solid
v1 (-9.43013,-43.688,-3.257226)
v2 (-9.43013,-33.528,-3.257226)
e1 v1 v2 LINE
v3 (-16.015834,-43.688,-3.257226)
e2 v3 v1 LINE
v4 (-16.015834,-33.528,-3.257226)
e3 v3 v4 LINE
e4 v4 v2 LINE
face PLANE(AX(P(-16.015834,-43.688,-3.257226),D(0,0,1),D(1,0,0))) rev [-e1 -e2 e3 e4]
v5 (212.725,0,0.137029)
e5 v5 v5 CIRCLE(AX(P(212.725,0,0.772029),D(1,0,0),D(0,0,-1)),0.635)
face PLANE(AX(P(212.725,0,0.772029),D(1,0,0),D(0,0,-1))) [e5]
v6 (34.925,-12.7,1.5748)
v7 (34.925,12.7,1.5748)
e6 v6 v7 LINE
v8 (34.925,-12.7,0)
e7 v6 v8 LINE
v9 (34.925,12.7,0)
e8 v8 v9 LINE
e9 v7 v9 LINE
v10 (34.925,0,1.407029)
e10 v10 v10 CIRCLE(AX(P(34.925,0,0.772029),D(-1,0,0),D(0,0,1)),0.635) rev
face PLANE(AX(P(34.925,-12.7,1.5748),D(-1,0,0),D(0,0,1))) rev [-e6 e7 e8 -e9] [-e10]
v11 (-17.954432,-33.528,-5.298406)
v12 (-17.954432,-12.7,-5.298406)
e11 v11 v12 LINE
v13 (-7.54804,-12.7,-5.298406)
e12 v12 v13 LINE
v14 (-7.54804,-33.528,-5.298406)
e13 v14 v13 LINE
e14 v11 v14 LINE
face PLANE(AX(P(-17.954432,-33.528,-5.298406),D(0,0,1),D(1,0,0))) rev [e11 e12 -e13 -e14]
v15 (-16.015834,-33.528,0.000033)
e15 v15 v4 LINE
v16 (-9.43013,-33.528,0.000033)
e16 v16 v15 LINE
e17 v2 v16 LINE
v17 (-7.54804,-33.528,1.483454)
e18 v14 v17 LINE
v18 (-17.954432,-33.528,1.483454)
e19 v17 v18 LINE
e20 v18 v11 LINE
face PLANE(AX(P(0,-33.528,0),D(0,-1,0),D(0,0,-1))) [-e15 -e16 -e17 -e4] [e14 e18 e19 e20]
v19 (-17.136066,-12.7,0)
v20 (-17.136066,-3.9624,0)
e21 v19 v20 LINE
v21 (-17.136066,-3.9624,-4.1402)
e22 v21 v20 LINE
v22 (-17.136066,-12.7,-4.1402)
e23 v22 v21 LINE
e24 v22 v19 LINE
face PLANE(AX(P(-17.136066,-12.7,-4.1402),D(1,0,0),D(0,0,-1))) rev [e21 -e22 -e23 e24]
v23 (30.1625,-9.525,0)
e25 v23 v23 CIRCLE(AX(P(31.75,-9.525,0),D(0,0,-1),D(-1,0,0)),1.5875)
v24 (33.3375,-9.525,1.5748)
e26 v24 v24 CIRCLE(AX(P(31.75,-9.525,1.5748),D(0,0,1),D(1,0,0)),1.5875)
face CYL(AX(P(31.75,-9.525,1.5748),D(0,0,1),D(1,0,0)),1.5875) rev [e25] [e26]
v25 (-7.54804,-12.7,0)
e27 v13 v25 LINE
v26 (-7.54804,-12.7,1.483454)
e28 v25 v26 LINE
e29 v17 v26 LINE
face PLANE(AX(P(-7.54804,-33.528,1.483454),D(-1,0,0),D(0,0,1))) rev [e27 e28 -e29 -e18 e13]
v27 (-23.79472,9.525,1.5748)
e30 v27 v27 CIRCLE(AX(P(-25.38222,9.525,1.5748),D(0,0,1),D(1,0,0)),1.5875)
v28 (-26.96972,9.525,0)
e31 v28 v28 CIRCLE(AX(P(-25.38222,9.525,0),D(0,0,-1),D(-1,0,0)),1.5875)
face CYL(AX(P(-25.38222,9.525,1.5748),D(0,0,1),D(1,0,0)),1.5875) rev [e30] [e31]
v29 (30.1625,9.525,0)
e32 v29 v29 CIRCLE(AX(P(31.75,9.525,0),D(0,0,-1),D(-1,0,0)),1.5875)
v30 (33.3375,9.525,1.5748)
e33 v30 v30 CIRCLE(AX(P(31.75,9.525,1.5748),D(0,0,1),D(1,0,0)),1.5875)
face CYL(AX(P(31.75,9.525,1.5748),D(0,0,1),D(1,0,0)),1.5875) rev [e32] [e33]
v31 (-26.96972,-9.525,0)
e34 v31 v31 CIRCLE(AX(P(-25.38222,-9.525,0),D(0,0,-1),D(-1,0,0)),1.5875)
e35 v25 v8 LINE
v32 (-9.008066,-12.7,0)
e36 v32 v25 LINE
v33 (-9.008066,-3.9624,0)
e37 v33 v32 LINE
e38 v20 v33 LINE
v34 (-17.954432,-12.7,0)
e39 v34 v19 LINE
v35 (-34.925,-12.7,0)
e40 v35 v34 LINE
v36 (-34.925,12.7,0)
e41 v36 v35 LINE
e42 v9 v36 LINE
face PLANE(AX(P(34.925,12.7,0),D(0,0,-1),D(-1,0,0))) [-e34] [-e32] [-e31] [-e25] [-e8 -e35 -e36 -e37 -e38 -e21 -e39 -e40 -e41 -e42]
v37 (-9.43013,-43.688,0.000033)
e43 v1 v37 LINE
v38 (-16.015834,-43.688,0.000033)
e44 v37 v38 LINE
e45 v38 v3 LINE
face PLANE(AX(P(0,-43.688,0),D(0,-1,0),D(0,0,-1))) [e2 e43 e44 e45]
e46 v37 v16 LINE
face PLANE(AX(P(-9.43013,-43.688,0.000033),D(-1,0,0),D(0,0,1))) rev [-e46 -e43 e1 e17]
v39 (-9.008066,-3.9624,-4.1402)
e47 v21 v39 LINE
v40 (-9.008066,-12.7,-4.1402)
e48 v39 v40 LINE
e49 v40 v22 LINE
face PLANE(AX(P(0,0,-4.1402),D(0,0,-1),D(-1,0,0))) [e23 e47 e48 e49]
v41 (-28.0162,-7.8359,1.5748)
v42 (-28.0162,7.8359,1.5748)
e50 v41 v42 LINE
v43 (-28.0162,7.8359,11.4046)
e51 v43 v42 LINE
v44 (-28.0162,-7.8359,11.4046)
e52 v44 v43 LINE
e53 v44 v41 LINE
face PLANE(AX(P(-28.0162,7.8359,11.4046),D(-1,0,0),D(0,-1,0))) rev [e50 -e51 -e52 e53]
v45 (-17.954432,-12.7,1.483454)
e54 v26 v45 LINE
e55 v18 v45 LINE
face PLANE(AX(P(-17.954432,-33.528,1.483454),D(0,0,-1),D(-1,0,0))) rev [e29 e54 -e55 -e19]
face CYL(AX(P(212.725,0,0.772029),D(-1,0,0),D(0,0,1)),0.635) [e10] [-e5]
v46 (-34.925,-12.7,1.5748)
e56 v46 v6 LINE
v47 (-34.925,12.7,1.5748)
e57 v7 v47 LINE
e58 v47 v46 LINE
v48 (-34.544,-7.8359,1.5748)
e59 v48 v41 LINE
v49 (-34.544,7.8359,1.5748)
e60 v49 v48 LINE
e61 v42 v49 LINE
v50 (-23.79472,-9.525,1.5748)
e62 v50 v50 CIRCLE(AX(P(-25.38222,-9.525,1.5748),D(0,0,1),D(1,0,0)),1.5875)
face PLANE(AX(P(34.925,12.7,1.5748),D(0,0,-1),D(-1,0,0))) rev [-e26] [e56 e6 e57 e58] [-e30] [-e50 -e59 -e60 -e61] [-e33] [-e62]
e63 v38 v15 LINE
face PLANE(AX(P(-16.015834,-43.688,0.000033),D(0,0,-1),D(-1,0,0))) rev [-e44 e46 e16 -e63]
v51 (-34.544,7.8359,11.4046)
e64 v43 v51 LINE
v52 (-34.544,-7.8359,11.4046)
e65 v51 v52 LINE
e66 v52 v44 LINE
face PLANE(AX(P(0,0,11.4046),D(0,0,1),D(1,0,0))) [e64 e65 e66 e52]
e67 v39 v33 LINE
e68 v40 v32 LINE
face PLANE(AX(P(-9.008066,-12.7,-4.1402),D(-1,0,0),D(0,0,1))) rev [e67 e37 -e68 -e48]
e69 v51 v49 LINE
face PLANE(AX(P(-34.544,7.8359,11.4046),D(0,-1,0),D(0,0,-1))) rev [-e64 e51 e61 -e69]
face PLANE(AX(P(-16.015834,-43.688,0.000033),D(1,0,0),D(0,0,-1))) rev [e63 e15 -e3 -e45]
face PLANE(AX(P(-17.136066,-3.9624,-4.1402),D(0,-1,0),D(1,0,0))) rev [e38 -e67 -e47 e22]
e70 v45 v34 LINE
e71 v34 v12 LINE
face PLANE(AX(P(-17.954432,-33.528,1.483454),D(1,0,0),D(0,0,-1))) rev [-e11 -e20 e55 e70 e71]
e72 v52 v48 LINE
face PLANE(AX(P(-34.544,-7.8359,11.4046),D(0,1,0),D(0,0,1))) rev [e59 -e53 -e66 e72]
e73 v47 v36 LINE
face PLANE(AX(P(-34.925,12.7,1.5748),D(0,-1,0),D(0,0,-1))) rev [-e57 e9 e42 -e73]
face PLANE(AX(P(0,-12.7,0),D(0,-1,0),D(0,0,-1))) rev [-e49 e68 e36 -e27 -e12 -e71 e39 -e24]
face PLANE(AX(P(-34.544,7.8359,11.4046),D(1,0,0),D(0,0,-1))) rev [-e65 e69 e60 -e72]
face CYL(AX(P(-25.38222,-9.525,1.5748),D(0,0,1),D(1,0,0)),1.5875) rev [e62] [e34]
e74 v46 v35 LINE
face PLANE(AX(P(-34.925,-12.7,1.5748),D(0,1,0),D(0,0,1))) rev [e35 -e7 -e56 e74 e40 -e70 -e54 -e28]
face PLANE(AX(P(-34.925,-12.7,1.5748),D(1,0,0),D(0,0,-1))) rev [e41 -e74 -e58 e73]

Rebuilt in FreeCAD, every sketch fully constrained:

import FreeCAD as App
import Part
import Sketcher
Q = App.Units.Quantity


def add_polygon(sketch, points):
    """Adds a closed chain of lines whose ends are joined by coincident constraints."""
    first, n = sketch.GeometryCount, len(points)
    for a, b in zip(points, points[1:] + points[:1]):
        sketch.addGeometry(Part.LineSegment(App.Vector(*a, 0), App.Vector(*b, 0)), False)
    for i in range(n):
        sketch.addConstraint(Sketcher.Constraint("Coincident", first + i, 2, first + (i + 1) % n, 1))

doc = App.newDocument("Part")
body = doc.addObject("PartDesign::Body", "Body")

# Sketch on XY plane
sketch1 = doc.addObject("Sketcher::SketchObject", "Sketch")
body.addObject(sketch1)
sketch1.AttachmentSupport = (doc.XY_Plane, [""])
sketch1.MapMode = "FlatFace"
add_polygon(sketch1, [(-35, 13), (-35, -13), (35, -13), (35, 13)])  # lines 0-3
sketch1.addConstraint(Sketcher.Constraint("Vertical", 0))
sketch1.addConstraint(Sketcher.Constraint("Horizontal", 1))
sketch1.addConstraint(Sketcher.Constraint("Vertical", 2))
sketch1.addConstraint(Sketcher.Constraint("Horizontal", 3))
sketch1.addConstraint(Sketcher.Constraint("Symmetric", 0, 2, 2, 2, -1, 1))
sketch1.addConstraint(Sketcher.Constraint("DistanceY", 0, 2, 0, 1, Q("1 in")))
sketch1.addConstraint(Sketcher.Constraint("DistanceX", 1, 1, 1, 2, Q("2.75 in")))
pad1 = doc.addObject("PartDesign::Pad", "Pad")
body.addObject(pad1)
pad1.Profile = sketch1
pad1.Length = Q("0.062 in")

# Sketch on YZ plane
sketch2 = doc.addObject("Sketcher::SketchObject", "Sketch001")
body.addObject(sketch2)
sketch2.AttachmentSupport = (doc.YZ_Plane, [""])
sketch2.MapMode = "FlatFace"
sketch2.AttachmentOffset = App.Placement(App.Vector(0, 0, -0.9993 * 25.4), App.Rotation())
add_polygon(sketch2, [(9.5, -15.4), (9.5, 1.6), (7.9, 1.6), (7.9, -14.4)])  # lines 0-3
sketch2.addGeometry(Part.LineSegment(App.Vector(9.5, 1.6, 0), App.Vector(9.5, -15.4, 0)), True)  # axis
sketch2.addConstraint(Sketcher.Constraint("Vertical", 0))
sketch2.addConstraint(Sketcher.Constraint("Horizontal", 1))
sketch2.addConstraint(Sketcher.Constraint("Vertical", 2))
sketch2.addConstraint(Sketcher.Constraint("Vertical", 4))
sketch2.addConstraint(Sketcher.Constraint("Coincident", 4, 1, 0, 2))
sketch2.addConstraint(Sketcher.Constraint("Equal", 0, 4))
sketch2.addConstraint(Sketcher.Constraint("Angle", 3, Q("-31 deg")))
sketch2.addConstraint(Sketcher.Constraint("DistanceY", 2, 2, 2, 1, Q("0.63 in")))
sketch2.addConstraint(Sketcher.Constraint("DistanceX", 1, 2, 1, 1, Q("0.0625 in")))
sketch2.addConstraint(Sketcher.Constraint("DistanceX", -1, 1, 0, 2, Q("0.375 in")))
sketch2.addConstraint(Sketcher.Constraint("DistanceY", -1, 1, 0, 2, Q("0.062 in")))
groove = doc.addObject("PartDesign::Groove", "Groove")
body.addObject(groove)
groove.Profile = sketch2
groove.ReferenceAxis = (sketch2, ["Axis0"])
groove.Angle = 360
doc.recompute()

linearpattern = doc.addObject("PartDesign::LinearPattern", "LinearPattern")
body.addObject(linearpattern)
linearpattern.Originals = [groove]
linearpattern.Direction = (doc.X_Axis, [""])
linearpattern.Mode = "offset"
linearpattern.Offset = Q("2.2493 in")
linearpattern.Occurrences = 2
body.Tip = linearpattern
doc.recompute()

mirrored = doc.addObject("PartDesign::Mirrored", "Mirrored")
body.addObject(mirrored)
mirrored.Originals = [groove]
mirrored.MirrorPlane = (doc.XZ_Plane, [""])
body.Tip = mirrored

# Sketch on YZ plane
sketch3 = doc.addObject("Sketcher::SketchObject", "Sketch002")
body.addObject(sketch3)
sketch3.AttachmentSupport = (doc.YZ_Plane, [""])
sketch3.MapMode = "FlatFace"
sketch3.AttachmentOffset = App.Placement(App.Vector(0, 0, 1.25 * 25.4), App.Rotation())
add_polygon(sketch3, [(-9.5, 1.6), (-9.5, -15.4), (-7.9, -14.4), (-7.9, 1.6)])  # lines 0-3
sketch3.addGeometry(Part.LineSegment(App.Vector(-9.5, -15.4, 0), App.Vector(-9.5, 1.6, 0)), True)  # axis
sketch3.addConstraint(Sketcher.Constraint("Vertical", 0))
sketch3.addConstraint(Sketcher.Constraint("Vertical", 2))
sketch3.addConstraint(Sketcher.Constraint("Horizontal", 3))
sketch3.addConstraint(Sketcher.Constraint("Vertical", 4))
sketch3.addConstraint(Sketcher.Constraint("Coincident", 4, 1, 0, 2))
sketch3.addConstraint(Sketcher.Constraint("Horizontal", 2, 2, 4, 2))
sketch3.addConstraint(Sketcher.Constraint("Angle", 1, Q("31 deg")))
sketch3.addConstraint(Sketcher.Constraint("DistanceY", 2, 1, 2, 2, Q("0.63 in")))
sketch3.addConstraint(Sketcher.Constraint("DistanceX", 3, 2, 3, 1, Q("0.0625 in")))
sketch3.addConstraint(Sketcher.Constraint("DistanceX", 0, 2, -1, 1, Q("0.375 in")))
sketch3.addConstraint(Sketcher.Constraint("DistanceY", 1, 2, -1, 1, Q("0.568 in")))
groove2 = doc.addObject("PartDesign::Groove", "Groove001")
body.addObject(groove2)
groove2.Profile = sketch3
groove2.ReferenceAxis = (sketch3, ["Axis0"])
groove2.Angle = 360

# Sketch on YZ plane
sketch4 = doc.addObject("Sketcher::SketchObject", "Sketch003")
body.addObject(sketch4)
sketch4.AttachmentSupport = (doc.YZ_Plane, [""])
sketch4.MapMode = "FlatFace"
sketch4.AttachmentOffset = App.Placement(App.Vector(0, 0, 1.375 * 25.4), App.Rotation())
sketch4.addGeometry(Part.Circle(App.Vector(0, 0.8, 0), App.Vector(0, 0, 1), 0.6), False)
sketch4.addConstraint(Sketcher.Constraint("PointOnObject", 0, 3, -2))
sketch4.addConstraint(Sketcher.Constraint("Diameter", 0, Q("0.05 in")))
sketch4.addConstraint(Sketcher.Constraint("DistanceY", -1, 1, 0, 3, 0.772029))
pad2 = doc.addObject("PartDesign::Pad", "Pad001")
body.addObject(pad2)
pad2.Profile = sketch4
pad2.Length = Q("7 in")

# Sketch on XY plane
sketch5 = doc.addObject("Sketcher::SketchObject", "Sketch004")
body.addObject(sketch5)
sketch5.AttachmentSupport = (doc.XY_Plane, [""])
sketch5.MapMode = "FlatFace"
add_polygon(sketch5, [(-9, -4), (-9, -13), (-17, -13), (-17, -4)])  # lines 0-3
sketch5.addConstraint(Sketcher.Constraint("Vertical", 0))
sketch5.addConstraint(Sketcher.Constraint("Horizontal", 1))
sketch5.addConstraint(Sketcher.Constraint("Vertical", 2))
sketch5.addConstraint(Sketcher.Constraint("Horizontal", 3))
sketch5.addConstraint(Sketcher.Constraint("DistanceX", 1, 2, 1, 1, Q("0.32 in")))
sketch5.addConstraint(Sketcher.Constraint("DistanceY", 0, 2, -1, 1, Q("0.5 in")))
sketch5.addConstraint(Sketcher.Constraint("DistanceY", 0, 2, 0, 1, Q("0.344 in")))
sketch5.addConstraint(Sketcher.Constraint("DistanceX", 0, 2, -1, 1, 9.008066))
pad3 = doc.addObject("PartDesign::Pad", "Pad002")
body.addObject(pad3)
pad3.Profile = sketch5
pad3.Length = Q("0.163 in")
pad3.Reversed = True

# Sketch on XZ plane
sketch6 = doc.addObject("Sketcher::SketchObject", "Sketch005")
body.addObject(sketch6)
sketch6.AttachmentSupport = (doc.XZ_Plane, [""])
sketch6.MapMode = "FlatFace"
sketch6.AttachmentOffset = App.Placement(App.Vector(0, 0, 0.5 * 25.4), App.Rotation())
add_polygon(sketch6, [(-18, 1), (-18, -5), (-8, -5), (-8, 1)])  # lines 0-3
sketch6.addConstraint(Sketcher.Constraint("Vertical", 0))
sketch6.addConstraint(Sketcher.Constraint("Horizontal", 1))
sketch6.addConstraint(Sketcher.Constraint("Vertical", 2))
sketch6.addConstraint(Sketcher.Constraint("Horizontal", 3))
sketch6.addConstraint(Sketcher.Constraint("DistanceY", 0, 2, 0, 1, 6.78186))
sketch6.addConstraint(Sketcher.Constraint("DistanceX", 1, 1, 1, 2, 10.406392))
sketch6.addConstraint(Sketcher.Constraint("DistanceX", 1, 2, -1, 1, 7.54804))
sketch6.addConstraint(Sketcher.Constraint("DistanceY", 0, 2, -1, 1, 5.298406))
pad4 = doc.addObject("PartDesign::Pad", "Pad003")
body.addObject(pad4)
pad4.Profile = sketch6
pad4.Length = Q("0.82 in")

# Sketch on XZ plane
sketch7 = doc.addObject("Sketcher::SketchObject", "Sketch006")
body.addObject(sketch7)
sketch7.AttachmentSupport = (doc.XZ_Plane, [""])
sketch7.MapMode = "FlatFace"
sketch7.AttachmentOffset = App.Placement(App.Vector(0, 0, 1.32 * 25.4), App.Rotation())
add_polygon(sketch7, [(-16, 0), (-16, -3.3), (-9.4, -3.3), (-9.4, 0)])  # lines 0-3
sketch7.addConstraint(Sketcher.Constraint("Vertical", 0))
sketch7.addConstraint(Sketcher.Constraint("Horizontal", 1))
sketch7.addConstraint(Sketcher.Constraint("Vertical", 2))
sketch7.addConstraint(Sketcher.Constraint("Horizontal", 3))
sketch7.addConstraint(Sketcher.Constraint("DistanceY", 0, 2, 0, 1, 3.257259))
sketch7.addConstraint(Sketcher.Constraint("DistanceX", 1, 1, 1, 2, 6.585704))
sketch7.addConstraint(Sketcher.Constraint("DistanceX", 1, 2, -1, 1, 9.43013))
sketch7.addConstraint(Sketcher.Constraint("DistanceY", 0, 2, -1, 1, 3.257226))
pad5 = doc.addObject("PartDesign::Pad", "Pad004")
body.addObject(pad5)
pad5.Profile = sketch7
pad5.Length = Q("0.4 in")

# Sketch on XY plane
sketch8 = doc.addObject("Sketcher::SketchObject", "Sketch007")
body.addObject(sketch8)
sketch8.AttachmentSupport = (doc.XY_Plane, [""])
sketch8.MapMode = "FlatFace"
sketch8.AttachmentOffset = App.Placement(App.Vector(0, 0, 0.062 * 25.4), App.Rotation())
add_polygon(sketch8, [(-35, 8), (-35, -8), (-28, -8), (-28, 8)])  # lines 0-3
sketch8.addConstraint(Sketcher.Constraint("Vertical", 0))
sketch8.addConstraint(Sketcher.Constraint("Horizontal", 1))
sketch8.addConstraint(Sketcher.Constraint("Vertical", 2))
sketch8.addConstraint(Sketcher.Constraint("Horizontal", 3))
sketch8.addConstraint(Sketcher.Constraint("DistanceX", 1, 1, 1, 2, Q("0.257 in")))
sketch8.addConstraint(Sketcher.Constraint("DistanceY", 0, 2, 0, 1, Q("0.617 in")))
sketch8.addConstraint(Sketcher.Constraint("DistanceX", 0, 2, -1, 1, Q("1.36 in")))
sketch8.addConstraint(Sketcher.Constraint("DistanceY", 0, 2, -1, 1, Q("0.3085 in")))
pad6 = doc.addObject("PartDesign::Pad", "Pad005")
body.addObject(pad6)
pad6.Profile = sketch8
pad6.Length = Q("0.387 in")

doc.recompute()
